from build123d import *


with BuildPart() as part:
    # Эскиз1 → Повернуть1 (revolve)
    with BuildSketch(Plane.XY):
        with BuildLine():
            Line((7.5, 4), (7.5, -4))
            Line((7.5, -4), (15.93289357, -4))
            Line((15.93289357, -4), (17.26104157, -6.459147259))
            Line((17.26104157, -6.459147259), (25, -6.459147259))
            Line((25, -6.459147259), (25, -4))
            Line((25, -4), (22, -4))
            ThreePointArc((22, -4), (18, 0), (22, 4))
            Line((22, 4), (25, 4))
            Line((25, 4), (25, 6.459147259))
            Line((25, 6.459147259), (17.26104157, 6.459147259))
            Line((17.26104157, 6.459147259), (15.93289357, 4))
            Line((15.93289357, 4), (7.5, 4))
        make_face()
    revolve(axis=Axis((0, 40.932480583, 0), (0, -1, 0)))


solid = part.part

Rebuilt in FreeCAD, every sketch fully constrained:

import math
import FreeCAD as App
import Part
import Sketcher
Q = App.Units.Quantity

doc = App.newDocument("Part")
params = doc.addObject("Spreadsheet::Sheet", "Params")
for row, (alias, value) in enumerate([
    ("sketch1_radius", "4 mm"),
    ("sketch1_width", "3 mm"),
    ("revolution_angle", "360 deg"),
], start=1):
    params.set(f"A{row}", alias)
    params.set(f"B{row}", "=" + value)
    params.setAlias(f"B{row}", alias)

body = doc.addObject("PartDesign::Body", "Body")

# Sketch on XY plane
sketch1 = body.newObject("Sketcher::SketchObject", "Sketch")
sketch1.AttachmentSupport = (doc.getObject("XY_Plane"), [""])
sketch1.MapMode = "FlatFace"
sketch1.addGeometry(Part.LineSegment(App.Vector(7.5, 4, 0), App.Vector(7.5, -4, 0)), False)
sketch1.addGeometry(Part.LineSegment(App.Vector(7.5, -4, 0), App.Vector(15.9, -4, 0)), False)
sketch1.addGeometry(Part.LineSegment(App.Vector(15.9, -4, 0), App.Vector(17.3, -6.5, 0)), False)
sketch1.addGeometry(Part.LineSegment(App.Vector(17.3, -6.5, 0), App.Vector(25, -6.5, 0)), False)
sketch1.addGeometry(Part.LineSegment(App.Vector(25, -6.5, 0), App.Vector(25, -4, 0)), False)
sketch1.addGeometry(Part.LineSegment(App.Vector(25, -4, 0), App.Vector(22, -4, 0)), False)
sketch1.addGeometry(Part.ArcOfCircle(Part.Circle(App.Vector(22, 0, 0), App.Vector(0, 0, 1), 4), math.radians(90), math.radians(270)), False)
sketch1.addGeometry(Part.LineSegment(App.Vector(22, 4, 0), App.Vector(25, 4, 0)), False)
sketch1.addGeometry(Part.LineSegment(App.Vector(25, 4, 0), App.Vector(25, 6.5, 0)), False)
sketch1.addGeometry(Part.LineSegment(App.Vector(25, 6.5, 0), App.Vector(17.3, 6.5, 0)), False)
sketch1.addGeometry(Part.LineSegment(App.Vector(17.3, 6.5, 0), App.Vector(15.9, 4, 0)), False)
sketch1.addGeometry(Part.LineSegment(App.Vector(15.9, 4, 0), App.Vector(7.5, 4, 0)), False)
sketch1.addConstraint(Sketcher.Constraint("Coincident", 0, 2, 1, 1))
sketch1.addConstraint(Sketcher.Constraint("Coincident", 1, 2, 2, 1))
sketch1.addConstraint(Sketcher.Constraint("Coincident", 2, 2, 3, 1))
sketch1.addConstraint(Sketcher.Constraint("Coincident", 3, 2, 4, 1))
sketch1.addConstraint(Sketcher.Constraint("Coincident", 4, 2, 5, 1))
sketch1.addConstraint(Sketcher.Constraint("Tangent", 5, 2, 6, 2))
sketch1.addConstraint(Sketcher.Constraint("Tangent", 6, 1, 7, 1))
sketch1.addConstraint(Sketcher.Constraint("Coincident", 7, 2, 8, 1))
sketch1.addConstraint(Sketcher.Constraint("Coincident", 8, 2, 9, 1))
sketch1.addConstraint(Sketcher.Constraint("Coincident", 9, 2, 10, 1))
sketch1.addConstraint(Sketcher.Constraint("Coincident", 10, 2, 11, 1))
sketch1.addConstraint(Sketcher.Constraint("Coincident", 11, 2, 0, 1))
sketch1.addConstraint(Sketcher.Constraint("Vertical", 0))
sketch1.addConstraint(Sketcher.Constraint("Horizontal", 1))
sketch1.addConstraint(Sketcher.Constraint("Horizontal", 3))
sketch1.addConstraint(Sketcher.Constraint("Vertical", 4))
sketch1.addConstraint(Sketcher.Constraint("Horizontal", 5))
sketch1.addConstraint(Sketcher.Constraint("Horizontal", 7))
sketch1.addConstraint(Sketcher.Constraint("Vertical", 8))
sketch1.addConstraint(Sketcher.Constraint("Horizontal", 9))
sketch1.addConstraint(Sketcher.Constraint("Horizontal", 11))
sketch1.addConstraint(Sketcher.Constraint("Symmetric", 4, 2, 7, 2, -1))
sketch1.addConstraint(Sketcher.Constraint("Symmetric", 2, 2, 9, 2, -1))
sketch1.addConstraint(Sketcher.Constraint("Symmetric", 1, 2, 10, 2, -1))
sketch1.addConstraint(Sketcher.Constraint("Horizontal", 1, 2, 4, 2))
sketch1.addConstraint(Sketcher.Constraint("Radius", 6, Q("4 mm")))
sketch1.addConstraint(Sketcher.Constraint("DistanceX", 5, 2, 5, 1, Q("3 mm")))
sketch1.addConstraint(Sketcher.Constraint("DistanceX", -1, 1, 6, 3, Q("22 mm")))
sketch1.addConstraint(Sketcher.Constraint("DistanceX", -1, 1, 0, 2, Q("7.5 mm")))
sketch1.addConstraint(Sketcher.Constraint("DistanceX", 3, 1, 3, 2, Q("7.738958 mm")))
sketch1.addConstraint(Sketcher.Constraint("DistanceX", 1, 1, 1, 2, Q("8.432894 mm")))
sketch1.addConstraint(Sketcher.Constraint("DistanceY", 4, 1, 4, 2, Q("2.459147 mm")))
sketch1.setExpression("Constraints[25]", "Params.sketch1_radius")
sketch1.setExpression("Constraints[26]", "Params.sketch1_width")
revolution = body.newObject("PartDesign::Revolution", "Revolution")
revolution.Profile = sketch1
revolution.ReferenceAxis = (sketch1, ["V_Axis"])
revolution.setExpression("Angle", "Params.revolution_angle")

doc.recompute()
